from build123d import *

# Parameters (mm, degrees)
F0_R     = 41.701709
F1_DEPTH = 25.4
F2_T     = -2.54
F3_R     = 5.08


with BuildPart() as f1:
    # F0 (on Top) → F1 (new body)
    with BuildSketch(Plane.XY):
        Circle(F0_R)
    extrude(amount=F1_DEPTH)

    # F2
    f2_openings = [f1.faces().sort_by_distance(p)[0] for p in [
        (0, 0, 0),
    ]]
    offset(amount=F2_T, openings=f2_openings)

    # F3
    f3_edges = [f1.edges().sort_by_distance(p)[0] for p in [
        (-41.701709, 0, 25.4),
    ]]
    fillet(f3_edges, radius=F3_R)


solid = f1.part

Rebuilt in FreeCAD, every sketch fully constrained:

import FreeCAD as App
import Part
import Sketcher
Q = App.Units.Quantity


def edges_at(feature, points):
    """Names of the edges that pass closest to the given points."""
    edges = feature.Shape.Edges
    near = lambda p: min(range(len(edges)), key=lambda i: edges[i].distToShape(Part.Vertex(*p))[0])
    return sorted({f"Edge{near(p) + 1}" for p in points})


def faces_at(feature, points):
    """Names of the faces that lie closest to the given points."""
    faces = feature.Shape.Faces
    near = lambda p: min(range(len(faces)), key=lambda i: faces[i].distToShape(Part.Vertex(*p))[0])
    return sorted({f"Face{near(p) + 1}" for p in points})

doc = App.newDocument("Part")
body = doc.addObject("PartDesign::Body", "Body")

# Sketch on XY plane
sketch1 = doc.addObject("Sketcher::SketchObject", "Sketch")
body.addObject(sketch1)
sketch1.AttachmentSupport = (doc.XY_Plane, [""])
sketch1.MapMode = "FlatFace"
sketch1.addGeometry(Part.Circle(App.Vector(0, 0, 0), App.Vector(0, 0, 1), 42), False)
sketch1.addConstraint([
    Sketcher.Constraint("Coincident", 0, 3, -1, 1),
    Sketcher.Constraint("Diameter", 0, 83.403418),
])
pad1 = doc.addObject("PartDesign::Pad", "Pad")
body.addObject(pad1)
pad1.Profile = sketch1
pad1.Length = Q("1 in")
doc.recompute()

thickness = doc.addObject("PartDesign::Thickness", "Thickness")
body.addObject(thickness)
thickness.Base = (pad1, faces_at(pad1, [(0, 0, 0)]))
thickness.Value = Q("0.1 in")
thickness.Reversed = True
thickness.Join = "Arc"
doc.recompute()

fillet = doc.addObject("PartDesign::Fillet", "Fillet")
body.addObject(fillet)
fillet.Base = (thickness, edges_at(thickness, [(-41.702, 0, 25.4)]))
fillet.Radius = Q("0.2 in")

doc.recompute()
